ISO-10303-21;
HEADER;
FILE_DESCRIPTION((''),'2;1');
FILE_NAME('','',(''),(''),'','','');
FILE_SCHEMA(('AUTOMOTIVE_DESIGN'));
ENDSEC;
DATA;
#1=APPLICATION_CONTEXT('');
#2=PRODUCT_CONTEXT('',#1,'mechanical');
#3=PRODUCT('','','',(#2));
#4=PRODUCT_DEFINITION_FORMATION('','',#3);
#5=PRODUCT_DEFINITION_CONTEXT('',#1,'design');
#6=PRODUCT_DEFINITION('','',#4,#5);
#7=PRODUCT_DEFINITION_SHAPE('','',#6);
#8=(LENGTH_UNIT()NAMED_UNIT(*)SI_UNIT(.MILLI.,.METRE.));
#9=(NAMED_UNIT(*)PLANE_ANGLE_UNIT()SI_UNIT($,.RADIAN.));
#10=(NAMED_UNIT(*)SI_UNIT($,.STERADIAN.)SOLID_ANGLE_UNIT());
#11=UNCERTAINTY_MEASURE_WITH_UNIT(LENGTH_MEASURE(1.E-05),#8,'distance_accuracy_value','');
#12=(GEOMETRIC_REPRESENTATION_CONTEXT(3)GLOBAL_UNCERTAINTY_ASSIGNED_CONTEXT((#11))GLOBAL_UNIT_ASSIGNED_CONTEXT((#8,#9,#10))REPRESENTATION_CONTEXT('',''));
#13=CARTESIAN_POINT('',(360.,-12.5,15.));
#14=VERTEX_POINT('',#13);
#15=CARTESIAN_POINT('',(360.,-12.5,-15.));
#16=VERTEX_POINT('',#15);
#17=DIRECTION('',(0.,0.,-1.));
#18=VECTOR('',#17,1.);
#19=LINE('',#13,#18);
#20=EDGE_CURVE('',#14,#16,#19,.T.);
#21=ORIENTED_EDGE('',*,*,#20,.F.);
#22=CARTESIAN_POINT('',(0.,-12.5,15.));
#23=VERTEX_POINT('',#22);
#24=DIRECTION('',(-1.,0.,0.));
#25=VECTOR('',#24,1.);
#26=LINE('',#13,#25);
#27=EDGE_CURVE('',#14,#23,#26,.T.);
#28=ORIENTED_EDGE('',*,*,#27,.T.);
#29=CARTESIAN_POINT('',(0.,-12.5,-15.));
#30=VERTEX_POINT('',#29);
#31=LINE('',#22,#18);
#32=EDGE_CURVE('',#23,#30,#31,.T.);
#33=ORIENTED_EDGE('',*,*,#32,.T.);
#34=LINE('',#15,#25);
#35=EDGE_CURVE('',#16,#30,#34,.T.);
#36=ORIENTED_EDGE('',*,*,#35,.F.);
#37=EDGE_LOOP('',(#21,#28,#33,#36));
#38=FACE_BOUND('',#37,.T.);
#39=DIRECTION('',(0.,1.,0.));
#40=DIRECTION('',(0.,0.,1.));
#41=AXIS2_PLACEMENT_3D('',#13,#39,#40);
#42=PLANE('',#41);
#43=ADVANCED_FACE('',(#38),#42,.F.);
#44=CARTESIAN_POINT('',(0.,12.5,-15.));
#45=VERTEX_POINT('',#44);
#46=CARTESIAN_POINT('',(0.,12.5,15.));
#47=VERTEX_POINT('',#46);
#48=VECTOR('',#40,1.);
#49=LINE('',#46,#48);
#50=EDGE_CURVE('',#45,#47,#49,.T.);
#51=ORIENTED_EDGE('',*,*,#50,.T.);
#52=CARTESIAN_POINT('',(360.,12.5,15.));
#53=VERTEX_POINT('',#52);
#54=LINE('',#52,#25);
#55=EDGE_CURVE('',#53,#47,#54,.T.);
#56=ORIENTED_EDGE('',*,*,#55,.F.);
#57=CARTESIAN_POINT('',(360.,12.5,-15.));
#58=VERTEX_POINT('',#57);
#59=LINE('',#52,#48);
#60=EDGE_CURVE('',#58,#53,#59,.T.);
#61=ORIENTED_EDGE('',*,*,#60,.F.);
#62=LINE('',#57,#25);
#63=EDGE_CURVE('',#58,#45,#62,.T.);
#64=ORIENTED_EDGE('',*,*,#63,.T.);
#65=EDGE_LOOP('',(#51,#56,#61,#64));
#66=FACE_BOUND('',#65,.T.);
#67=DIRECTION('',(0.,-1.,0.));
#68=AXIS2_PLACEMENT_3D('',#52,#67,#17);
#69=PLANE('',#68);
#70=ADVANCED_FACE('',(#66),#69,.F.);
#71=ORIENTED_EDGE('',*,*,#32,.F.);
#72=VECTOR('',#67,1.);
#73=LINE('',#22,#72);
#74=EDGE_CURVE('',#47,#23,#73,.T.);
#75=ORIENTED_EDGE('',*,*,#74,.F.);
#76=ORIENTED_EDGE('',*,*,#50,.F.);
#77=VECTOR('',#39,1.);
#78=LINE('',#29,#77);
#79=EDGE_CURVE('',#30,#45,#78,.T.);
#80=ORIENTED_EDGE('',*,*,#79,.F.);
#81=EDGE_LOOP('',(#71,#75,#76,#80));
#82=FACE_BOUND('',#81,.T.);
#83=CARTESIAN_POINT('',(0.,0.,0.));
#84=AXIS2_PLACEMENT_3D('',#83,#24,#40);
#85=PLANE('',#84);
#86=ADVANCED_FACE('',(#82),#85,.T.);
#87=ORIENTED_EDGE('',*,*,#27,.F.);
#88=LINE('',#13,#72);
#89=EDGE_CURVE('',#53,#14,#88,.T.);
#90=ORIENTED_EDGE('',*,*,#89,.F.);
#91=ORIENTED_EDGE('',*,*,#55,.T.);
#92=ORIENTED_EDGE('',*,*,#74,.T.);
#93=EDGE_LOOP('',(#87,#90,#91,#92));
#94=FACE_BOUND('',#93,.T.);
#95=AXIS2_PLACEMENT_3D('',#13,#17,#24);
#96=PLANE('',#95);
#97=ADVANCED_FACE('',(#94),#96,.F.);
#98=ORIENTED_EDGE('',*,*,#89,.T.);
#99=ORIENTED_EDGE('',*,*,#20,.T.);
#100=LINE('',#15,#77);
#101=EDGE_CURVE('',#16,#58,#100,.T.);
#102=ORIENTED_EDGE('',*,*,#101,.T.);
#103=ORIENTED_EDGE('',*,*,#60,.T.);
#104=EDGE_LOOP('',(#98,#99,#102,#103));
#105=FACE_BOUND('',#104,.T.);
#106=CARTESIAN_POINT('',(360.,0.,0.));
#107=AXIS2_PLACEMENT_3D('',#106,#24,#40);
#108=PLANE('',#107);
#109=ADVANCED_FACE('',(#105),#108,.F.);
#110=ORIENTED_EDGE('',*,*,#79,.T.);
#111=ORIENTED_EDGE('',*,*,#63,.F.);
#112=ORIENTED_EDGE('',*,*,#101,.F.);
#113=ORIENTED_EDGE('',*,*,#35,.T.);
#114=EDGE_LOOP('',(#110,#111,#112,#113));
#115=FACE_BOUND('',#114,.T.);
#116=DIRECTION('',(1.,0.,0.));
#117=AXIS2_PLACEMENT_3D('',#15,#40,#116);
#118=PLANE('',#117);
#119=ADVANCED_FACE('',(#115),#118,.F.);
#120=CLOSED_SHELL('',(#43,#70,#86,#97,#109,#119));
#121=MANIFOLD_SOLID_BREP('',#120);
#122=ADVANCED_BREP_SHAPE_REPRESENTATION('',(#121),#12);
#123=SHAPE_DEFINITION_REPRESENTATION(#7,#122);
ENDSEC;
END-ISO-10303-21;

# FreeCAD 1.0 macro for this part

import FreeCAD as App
import Part
import Sketcher
from FreeCAD import Vector


def add_polygon(sketch, points):
    """Adds a closed chain of lines whose ends are joined by coincident constraints."""
    first, n = sketch.GeometryCount, len(points)
    for a, b in zip(points, points[1:] + points[:1]):
        sketch.addGeometry(Part.LineSegment(App.Vector(*a, 0), App.Vector(*b, 0)), False)
    for i in range(n):
        sketch.addConstraint(Sketcher.Constraint("Coincident", first + i, 2, first + (i + 1) % n, 1))

doc = App.newDocument("Part")
body = doc.addObject("PartDesign::Body", "Body")

# Sketch on YZ plane
sketch1 = doc.addObject("Sketcher::SketchObject", "Sketch")
body.addObject(sketch1)
sketch1.AttachmentSupport = (doc.YZ_Plane, [""])
sketch1.MapMode = "FlatFace"
add_polygon(sketch1, [(12, 15), (-12, 15), (-12, -15), (12, -15)])  # lines 0-3
sketch1.addConstraint(Sketcher.Constraint("Horizontal", 0))
sketch1.addConstraint(Sketcher.Constraint("Vertical", 1))
sketch1.addConstraint(Sketcher.Constraint("Horizontal", 2))
sketch1.addConstraint(Sketcher.Constraint("Vertical", 3))
sketch1.addConstraint(Sketcher.Constraint("Symmetric", 0, 2, 2, 2, -1, 1))
sketch1.addConstraint(Sketcher.Constraint("DistanceX", 0, 2, 0, 1, 25.0))
sketch1.addConstraint(Sketcher.Constraint("DistanceY", 1, 2, 1, 1, 30.0))
pad1 = doc.addObject("PartDesign::Pad", "Pad")
body.addObject(pad1)
pad1.Profile = sketch1
pad1.Length = 360

doc.recompute()
